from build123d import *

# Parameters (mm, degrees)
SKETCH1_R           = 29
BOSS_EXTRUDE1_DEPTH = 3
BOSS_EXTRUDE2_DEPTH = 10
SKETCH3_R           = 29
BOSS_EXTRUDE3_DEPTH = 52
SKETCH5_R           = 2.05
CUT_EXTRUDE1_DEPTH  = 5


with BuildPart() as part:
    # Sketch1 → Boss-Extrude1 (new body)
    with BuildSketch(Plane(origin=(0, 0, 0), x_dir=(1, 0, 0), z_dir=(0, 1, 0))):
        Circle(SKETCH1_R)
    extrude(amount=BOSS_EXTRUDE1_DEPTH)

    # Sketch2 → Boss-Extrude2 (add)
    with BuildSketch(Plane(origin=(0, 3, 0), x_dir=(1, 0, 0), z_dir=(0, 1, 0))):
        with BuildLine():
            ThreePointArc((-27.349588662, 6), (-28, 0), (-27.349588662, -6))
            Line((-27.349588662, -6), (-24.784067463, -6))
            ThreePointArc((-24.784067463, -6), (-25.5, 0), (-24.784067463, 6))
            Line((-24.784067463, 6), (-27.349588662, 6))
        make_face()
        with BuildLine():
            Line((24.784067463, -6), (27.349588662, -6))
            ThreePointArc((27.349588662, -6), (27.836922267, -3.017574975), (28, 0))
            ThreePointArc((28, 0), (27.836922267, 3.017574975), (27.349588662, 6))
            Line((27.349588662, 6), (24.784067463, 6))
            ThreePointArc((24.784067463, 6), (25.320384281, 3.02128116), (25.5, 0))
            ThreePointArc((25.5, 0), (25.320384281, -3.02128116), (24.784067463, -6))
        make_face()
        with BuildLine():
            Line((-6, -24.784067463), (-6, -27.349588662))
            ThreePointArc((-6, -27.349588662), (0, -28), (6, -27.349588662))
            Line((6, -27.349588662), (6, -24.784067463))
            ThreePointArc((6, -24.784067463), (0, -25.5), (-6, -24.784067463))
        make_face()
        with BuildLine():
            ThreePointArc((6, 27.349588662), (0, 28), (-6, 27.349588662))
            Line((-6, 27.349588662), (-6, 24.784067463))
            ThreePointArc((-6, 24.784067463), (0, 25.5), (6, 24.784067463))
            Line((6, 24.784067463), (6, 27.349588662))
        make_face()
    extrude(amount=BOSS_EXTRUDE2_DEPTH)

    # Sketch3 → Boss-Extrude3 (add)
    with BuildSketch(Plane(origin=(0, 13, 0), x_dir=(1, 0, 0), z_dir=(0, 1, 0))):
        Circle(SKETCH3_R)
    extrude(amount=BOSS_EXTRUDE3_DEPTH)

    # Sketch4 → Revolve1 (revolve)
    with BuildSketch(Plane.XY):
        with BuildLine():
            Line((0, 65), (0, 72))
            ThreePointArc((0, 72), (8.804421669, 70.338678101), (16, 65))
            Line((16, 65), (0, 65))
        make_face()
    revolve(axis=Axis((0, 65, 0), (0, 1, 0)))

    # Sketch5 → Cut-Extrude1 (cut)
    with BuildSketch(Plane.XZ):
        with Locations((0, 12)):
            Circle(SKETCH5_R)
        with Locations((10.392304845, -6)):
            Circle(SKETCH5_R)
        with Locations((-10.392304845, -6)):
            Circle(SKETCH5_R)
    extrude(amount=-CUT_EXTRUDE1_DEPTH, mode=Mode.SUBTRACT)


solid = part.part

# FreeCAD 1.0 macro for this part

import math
import FreeCAD as App
import Part
import Sketcher
from FreeCAD import Vector
Q = App.Units.Quantity

doc = App.newDocument("Part")
params = doc.addObject("Spreadsheet::Sheet", "Params")
for row, (alias, value) in enumerate([
    ("sketch1_diameter", "58 mm"),
    ("pad1_length", "3 mm"),
    ("sketch2_radius", "28 mm"),
    ("sketch2_radius2", "25.5 mm"),
    ("pad2_length", "10 mm"),
    ("sketch3_diameter", "58 mm"),
    ("pad3_length", "52 mm"),
    ("sketch4_radius", "20 mm"),
    ("sketch4_width", "16 mm"),
    ("sketch4_height", "7 mm"),
    ("revolution_angle", "360 deg"),
    ("sketch5_diameter", "4.1 mm"),
    ("pocket1_length", "5 mm"),
], start=1):
    params.set(f"A{row}", alias)
    params.set(f"B{row}", "=" + value)
    params.setAlias(f"B{row}", alias)

body = doc.addObject("PartDesign::Body", "Body")

# Sketch on XZ plane
sketch1 = body.newObject("Sketcher::SketchObject", "Sketch")
sketch1.AttachmentSupport = (doc.getObject("XZ_Plane"), [""])
sketch1.MapMode = "FlatFace"
sketch1.addGeometry(Part.Circle(Vector(0, 0, 0), Vector(0, 0, 1), 29), False)
sketch1.addConstraint(Sketcher.Constraint("Coincident", 0, 3, -1, 1))
sketch1.addConstraint(Sketcher.Constraint("Diameter", 0, Q("58 mm")))
sketch1.setExpression("Constraints[1]", "Params.sketch1_diameter")
pad1 = body.newObject("PartDesign::Pad", "Pad")
pad1.Profile = sketch1
pad1.setExpression("Length", "Params.pad1_length")
pad1.Reversed = True

# Sketch on XZ plane
sketch2 = body.newObject("Sketcher::SketchObject", "Sketch001")
sketch2.AttachmentSupport = (doc.getObject("XZ_Plane"), [""])
sketch2.MapMode = "FlatFace"
sketch2.AttachmentOffset = App.Placement(Vector(0, 0, -3), App.Rotation())
sketch2.addGeometry(Part.ArcOfCircle(Part.Circle(Vector(0, 0, 0), Vector(0, 0, 1), 28), math.radians(168), math.radians(192)), False)
sketch2.addGeometry(Part.LineSegment(Vector(-27.3, 6, 0), Vector(-24.8, 6, 0)), False)
sketch2.addGeometry(Part.ArcOfCircle(Part.Circle(Vector(0, 0, 0), Vector(0, 0, 1), 25.5), math.radians(166), math.radians(194)), False)
sketch2.addGeometry(Part.LineSegment(Vector(-24.8, -6, 0), Vector(-27.3, -6, 0)), False)
sketch2.addGeometry(Part.LineSegment(Vector(24.8, 6, 0), Vector(27.3, 6, 0)), False)
sketch2.addGeometry(Part.ArcOfCircle(Part.Circle(Vector(0, 0, 0), Vector(0, 0, 1), 28), math.radians(0), math.radians(12.37)), False)
sketch2.addGeometry(Part.ArcOfCircle(Part.Circle(Vector(0, 0, 0), Vector(0, 0, 1), 28), math.radians(-12.37), math.radians(0)), False)
sketch2.addGeometry(Part.LineSegment(Vector(27.3, -6, 0), Vector(24.8, -6, 0)), False)
sketch2.addGeometry(Part.ArcOfCircle(Part.Circle(Vector(0, 0, 0), Vector(0, 0, 1), 25.5), math.radians(-13.61), math.radians(0)), False)
sketch2.addGeometry(Part.ArcOfCircle(Part.Circle(Vector(0, 0, 0), Vector(0, 0, 1), 25.5), math.radians(0), math.radians(13.61)), False)
sketch2.addGeometry(Part.LineSegment(Vector(-6, 24.8, 0), Vector(-6, 27.3, 0)), False)
sketch2.addGeometry(Part.ArcOfCircle(Part.Circle(Vector(0, 0, 0), Vector(0, 0, 1), 28), math.radians(78), math.radians(102)), False)
sketch2.addGeometry(Part.LineSegment(Vector(6, 27.3, 0), Vector(6, 24.8, 0)), False)
sketch2.addGeometry(Part.ArcOfCircle(Part.Circle(Vector(0, 0, 0), Vector(0, 0, 1), 25.5), math.radians(76), math.radians(104)), False)
sketch2.addGeometry(Part.ArcOfCircle(Part.Circle(Vector(0, 0, 0), Vector(0, 0, 1), 28), math.radians(-102), math.radians(-78)), False)
sketch2.addGeometry(Part.LineSegment(Vector(-6, -27.3, 0), Vector(-6, -24.8, 0)), False)
sketch2.addGeometry(Part.ArcOfCircle(Part.Circle(Vector(0, 0, 0), Vector(0, 0, 1), 25.5), math.radians(-104), math.radians(-76)), False)
sketch2.addGeometry(Part.LineSegment(Vector(6, -24.8, 0), Vector(6, -27.3, 0)), False)
sketch2.addConstraint(Sketcher.Constraint("Coincident", 0, 1, 1, 1))
sketch2.addConstraint(Sketcher.Constraint("Coincident", 1, 2, 2, 1))
sketch2.addConstraint(Sketcher.Constraint("Coincident", 2, 2, 3, 1))
sketch2.addConstraint(Sketcher.Constraint("Coincident", 3, 2, 0, 2))
sketch2.addConstraint(Sketcher.Constraint("Coincident", 4, 2, 5, 2))
sketch2.addConstraint(Sketcher.Constraint("Tangent", 5, 1, 6, 2))
sketch2.addConstraint(Sketcher.Constraint("Coincident", 6, 1, 7, 1))
sketch2.addConstraint(Sketcher.Constraint("Coincident", 7, 2, 8, 1))
sketch2.addConstraint(Sketcher.Constraint("Tangent", 8, 2, 9, 1))
sketch2.addConstraint(Sketcher.Constraint("Coincident", 9, 2, 4, 1))
sketch2.addConstraint(Sketcher.Constraint("Coincident", 10, 2, 11, 2))
sketch2.addConstraint(Sketcher.Constraint("Coincident", 11, 1, 12, 1))
sketch2.addConstraint(Sketcher.Constraint("Coincident", 12, 2, 13, 1))
sketch2.addConstraint(Sketcher.Constraint("Coincident", 13, 2, 10, 1))
sketch2.addConstraint(Sketcher.Constraint("Coincident", 14, 1, 15, 1))
sketch2.addConstraint(Sketcher.Constraint("Coincident", 15, 2, 16, 1))
sketch2.addConstraint(Sketcher.Constraint("Coincident", 16, 2, 17, 1))
sketch2.addConstraint(Sketcher.Constraint("Coincident", 17, 2, 14, 2))
sketch2.addConstraint(Sketcher.Constraint("Horizontal", 1))
sketch2.addConstraint(Sketcher.Constraint("Horizontal", 3))
sketch2.addConstraint(Sketcher.Constraint("Horizontal", 4))
sketch2.addConstraint(Sketcher.Constraint("Horizontal", 7))
sketch2.addConstraint(Sketcher.Constraint("Vertical", 10))
sketch2.addConstraint(Sketcher.Constraint("Vertical", 12))
sketch2.addConstraint(Sketcher.Constraint("Vertical", 15))
sketch2.addConstraint(Sketcher.Constraint("Vertical", 17))
sketch2.addConstraint(Sketcher.Constraint("Coincident", 0, 3, -1, 1))
sketch2.addConstraint(Sketcher.Constraint("Coincident", 2, 3, -1, 1))
sketch2.addConstraint(Sketcher.Constraint("Coincident", 5, 3, -1, 1))
sketch2.addConstraint(Sketcher.Constraint("Coincident", 8, 3, -1, 1))
sketch2.addConstraint(Sketcher.Constraint("Coincident", 11, 3, -1, 1))
sketch2.addConstraint(Sketcher.Constraint("Coincident", 13, 3, -1, 1))
sketch2.addConstraint(Sketcher.Constraint("Coincident", 14, 3, -1, 1))
sketch2.addConstraint(Sketcher.Constraint("Coincident", 16, 3, -1, 1))
sketch2.addConstraint(Sketcher.Constraint("Equal", 0, 5))
sketch2.addConstraint(Sketcher.Constraint("Equal", 5, 6))
sketch2.addConstraint(Sketcher.Constraint("Equal", 2, 8))
sketch2.addConstraint(Sketcher.Constraint("Equal", 8, 9))
sketch2.addConstraint(Sketcher.Constraint("Equal", 6, 11))
sketch2.addConstraint(Sketcher.Constraint("Equal", 9, 13))
sketch2.addConstraint(Sketcher.Constraint("Equal", 11, 14))
sketch2.addConstraint(Sketcher.Constraint("Equal", 13, 16))
sketch2.addConstraint(Sketcher.Constraint("PointOnObject", 5, 1, -1))
sketch2.addConstraint(Sketcher.Constraint("PointOnObject", 8, 2, -1))
sketch2.addConstraint(Sketcher.Constraint("Horizontal", 1, 2, 4, 2))
sketch2.addConstraint(Sketcher.Constraint("Horizontal", 3, 2, 6, 1))
sketch2.addConstraint(Sketcher.Constraint("Horizontal", 10, 2, 11, 1))
sketch2.addConstraint(Sketcher.Constraint("Horizontal", 15, 2, 16, 2))
sketch2.addConstraint(Sketcher.Constraint("Vertical", 1, 2, 2, 2))
sketch2.addConstraint(Sketcher.Constraint("Vertical", 13, 2, 14, 1))
sketch2.addConstraint(Sketcher.Constraint("Equal", 7, 10))
sketch2.addConstraint(Sketcher.Constraint("Radius", 0, Q("28 mm")))
sketch2.addConstraint(Sketcher.Constraint("Radius", 2, Q("25.5 mm")))
sketch2.addConstraint(Sketcher.Constraint("DistanceY", -1, 1, 0, 1, Q("6 mm")))
sketch2.setExpression("Constraints[51]", "Params.sketch2_radius")
sketch2.setExpression("Constraints[52]", "Params.sketch2_radius2")
pad2 = body.newObject("PartDesign::Pad", "Pad001")
pad2.Profile = sketch2
pad2.setExpression("Length", "Params.pad2_length")
pad2.Reversed = True

# Sketch on XZ plane
sketch3 = body.newObject("Sketcher::SketchObject", "Sketch002")
sketch3.AttachmentSupport = (doc.getObject("XZ_Plane"), [""])
sketch3.MapMode = "FlatFace"
sketch3.AttachmentOffset = App.Placement(Vector(0, 0, -13), App.Rotation())
sketch3.addGeometry(Part.Circle(Vector(0, 0, 0), Vector(0, 0, 1), 29), False)
sketch3.addConstraint(Sketcher.Constraint("Coincident", 0, 3, -1, 1))
sketch3.addConstraint(Sketcher.Constraint("Diameter", 0, Q("58 mm")))
sketch3.setExpression("Constraints[1]", "Params.sketch3_diameter")
pad3 = body.newObject("PartDesign::Pad", "Pad002")
pad3.Profile = sketch3
pad3.setExpression("Length", "Params.pad3_length")
pad3.Reversed = True

# Sketch on XY plane
sketch4 = body.newObject("Sketcher::SketchObject", "Sketch003")
sketch4.AttachmentSupport = (doc.getObject("XY_Plane"), [""])
sketch4.MapMode = "FlatFace"
sketch4.addGeometry(Part.LineSegment(Vector(0, 72, 0), Vector(0, 65, 0)), False)
sketch4.addGeometry(Part.LineSegment(Vector(0, 65, 0), Vector(16, 65, 0)), False)
sketch4.addGeometry(Part.ArcOfCircle(Part.Circle(Vector(1, 52, 0), Vector(0, 0, 1), 20), math.radians(40), math.radians(92)), False)
sketch4.addConstraint(Sketcher.Constraint("Coincident", 0, 2, 1, 1))
sketch4.addConstraint(Sketcher.Constraint("Coincident", 1, 2, 2, 1))
sketch4.addConstraint(Sketcher.Constraint("Coincident", 2, 2, 0, 1))
sketch4.addConstraint(Sketcher.Constraint("Vertical", 0))
sketch4.addConstraint(Sketcher.Constraint("Horizontal", 1))
sketch4.addConstraint(Sketcher.Constraint("PointOnObject", 0, 2, -2))
sketch4.addConstraint(Sketcher.Constraint("Radius", 2, Q("20 mm")))
sketch4.addConstraint(Sketcher.Constraint("DistanceX", 1, 1, 1, 2, Q("16 mm")))
sketch4.addConstraint(Sketcher.Constraint("DistanceY", 0, 2, 0, 1, Q("7 mm")))
sketch4.addConstraint(Sketcher.Constraint("DistanceY", -1, 1, 0, 2, Q("65 mm")))
sketch4.setExpression("Constraints[6]", "Params.sketch4_radius")
sketch4.setExpression("Constraints[7]", "Params.sketch4_width")
sketch4.setExpression("Constraints[8]", "Params.sketch4_height")
revolution = body.newObject("PartDesign::Revolution", "Revolution")
revolution.Profile = sketch4
revolution.ReferenceAxis = (sketch4, ["V_Axis"])
revolution.setExpression("Angle", "Params.revolution_angle")

# Sketch on XZ plane
sketch5 = body.newObject("Sketcher::SketchObject", "Sketch004")
sketch5.AttachmentSupport = (doc.getObject("XZ_Plane"), [""])
sketch5.MapMode = "FlatFace"
sketch5.addGeometry(Part.Circle(Vector(0, 12, 0), Vector(0, 0, 1), 2), False)
sketch5.addGeometry(Part.Circle(Vector(10.4, -6, 0), Vector(0, 0, 1), 2), False)
sketch5.addGeometry(Part.Circle(Vector(-10.4, -6, 0), Vector(0, 0, 1), 2), False)
sketch5.addConstraint(Sketcher.Constraint("Equal", 0, 1))
sketch5.addConstraint(Sketcher.Constraint("Equal", 1, 2))
sketch5.addConstraint(Sketcher.Constraint("Symmetric", 1, 3, 2, 3, -2))
sketch5.addConstraint(Sketcher.Constraint("PointOnObject", 0, 3, -2))
sketch5.addConstraint(Sketcher.Constraint("Diameter", 0, Q("4.1 mm")))
sketch5.addConstraint(Sketcher.Constraint("DistanceY", -1, 1, 0, 3, Q("12 mm")))
sketch5.addConstraint(Sketcher.Constraint("DistanceY", 1, 3, -1, 1, Q("6 mm")))
sketch5.addConstraint(Sketcher.Constraint("DistanceX", 2, 3, 1, 3, Q("20.78461 mm")))
sketch5.setExpression("Constraints[4]", "Params.sketch5_diameter")
pocket1 = body.newObject("PartDesign::Pocket", "Pocket")
pocket1.Profile = sketch5
pocket1.setExpression("Length", "Params.pocket1_length")

doc.recompute()
